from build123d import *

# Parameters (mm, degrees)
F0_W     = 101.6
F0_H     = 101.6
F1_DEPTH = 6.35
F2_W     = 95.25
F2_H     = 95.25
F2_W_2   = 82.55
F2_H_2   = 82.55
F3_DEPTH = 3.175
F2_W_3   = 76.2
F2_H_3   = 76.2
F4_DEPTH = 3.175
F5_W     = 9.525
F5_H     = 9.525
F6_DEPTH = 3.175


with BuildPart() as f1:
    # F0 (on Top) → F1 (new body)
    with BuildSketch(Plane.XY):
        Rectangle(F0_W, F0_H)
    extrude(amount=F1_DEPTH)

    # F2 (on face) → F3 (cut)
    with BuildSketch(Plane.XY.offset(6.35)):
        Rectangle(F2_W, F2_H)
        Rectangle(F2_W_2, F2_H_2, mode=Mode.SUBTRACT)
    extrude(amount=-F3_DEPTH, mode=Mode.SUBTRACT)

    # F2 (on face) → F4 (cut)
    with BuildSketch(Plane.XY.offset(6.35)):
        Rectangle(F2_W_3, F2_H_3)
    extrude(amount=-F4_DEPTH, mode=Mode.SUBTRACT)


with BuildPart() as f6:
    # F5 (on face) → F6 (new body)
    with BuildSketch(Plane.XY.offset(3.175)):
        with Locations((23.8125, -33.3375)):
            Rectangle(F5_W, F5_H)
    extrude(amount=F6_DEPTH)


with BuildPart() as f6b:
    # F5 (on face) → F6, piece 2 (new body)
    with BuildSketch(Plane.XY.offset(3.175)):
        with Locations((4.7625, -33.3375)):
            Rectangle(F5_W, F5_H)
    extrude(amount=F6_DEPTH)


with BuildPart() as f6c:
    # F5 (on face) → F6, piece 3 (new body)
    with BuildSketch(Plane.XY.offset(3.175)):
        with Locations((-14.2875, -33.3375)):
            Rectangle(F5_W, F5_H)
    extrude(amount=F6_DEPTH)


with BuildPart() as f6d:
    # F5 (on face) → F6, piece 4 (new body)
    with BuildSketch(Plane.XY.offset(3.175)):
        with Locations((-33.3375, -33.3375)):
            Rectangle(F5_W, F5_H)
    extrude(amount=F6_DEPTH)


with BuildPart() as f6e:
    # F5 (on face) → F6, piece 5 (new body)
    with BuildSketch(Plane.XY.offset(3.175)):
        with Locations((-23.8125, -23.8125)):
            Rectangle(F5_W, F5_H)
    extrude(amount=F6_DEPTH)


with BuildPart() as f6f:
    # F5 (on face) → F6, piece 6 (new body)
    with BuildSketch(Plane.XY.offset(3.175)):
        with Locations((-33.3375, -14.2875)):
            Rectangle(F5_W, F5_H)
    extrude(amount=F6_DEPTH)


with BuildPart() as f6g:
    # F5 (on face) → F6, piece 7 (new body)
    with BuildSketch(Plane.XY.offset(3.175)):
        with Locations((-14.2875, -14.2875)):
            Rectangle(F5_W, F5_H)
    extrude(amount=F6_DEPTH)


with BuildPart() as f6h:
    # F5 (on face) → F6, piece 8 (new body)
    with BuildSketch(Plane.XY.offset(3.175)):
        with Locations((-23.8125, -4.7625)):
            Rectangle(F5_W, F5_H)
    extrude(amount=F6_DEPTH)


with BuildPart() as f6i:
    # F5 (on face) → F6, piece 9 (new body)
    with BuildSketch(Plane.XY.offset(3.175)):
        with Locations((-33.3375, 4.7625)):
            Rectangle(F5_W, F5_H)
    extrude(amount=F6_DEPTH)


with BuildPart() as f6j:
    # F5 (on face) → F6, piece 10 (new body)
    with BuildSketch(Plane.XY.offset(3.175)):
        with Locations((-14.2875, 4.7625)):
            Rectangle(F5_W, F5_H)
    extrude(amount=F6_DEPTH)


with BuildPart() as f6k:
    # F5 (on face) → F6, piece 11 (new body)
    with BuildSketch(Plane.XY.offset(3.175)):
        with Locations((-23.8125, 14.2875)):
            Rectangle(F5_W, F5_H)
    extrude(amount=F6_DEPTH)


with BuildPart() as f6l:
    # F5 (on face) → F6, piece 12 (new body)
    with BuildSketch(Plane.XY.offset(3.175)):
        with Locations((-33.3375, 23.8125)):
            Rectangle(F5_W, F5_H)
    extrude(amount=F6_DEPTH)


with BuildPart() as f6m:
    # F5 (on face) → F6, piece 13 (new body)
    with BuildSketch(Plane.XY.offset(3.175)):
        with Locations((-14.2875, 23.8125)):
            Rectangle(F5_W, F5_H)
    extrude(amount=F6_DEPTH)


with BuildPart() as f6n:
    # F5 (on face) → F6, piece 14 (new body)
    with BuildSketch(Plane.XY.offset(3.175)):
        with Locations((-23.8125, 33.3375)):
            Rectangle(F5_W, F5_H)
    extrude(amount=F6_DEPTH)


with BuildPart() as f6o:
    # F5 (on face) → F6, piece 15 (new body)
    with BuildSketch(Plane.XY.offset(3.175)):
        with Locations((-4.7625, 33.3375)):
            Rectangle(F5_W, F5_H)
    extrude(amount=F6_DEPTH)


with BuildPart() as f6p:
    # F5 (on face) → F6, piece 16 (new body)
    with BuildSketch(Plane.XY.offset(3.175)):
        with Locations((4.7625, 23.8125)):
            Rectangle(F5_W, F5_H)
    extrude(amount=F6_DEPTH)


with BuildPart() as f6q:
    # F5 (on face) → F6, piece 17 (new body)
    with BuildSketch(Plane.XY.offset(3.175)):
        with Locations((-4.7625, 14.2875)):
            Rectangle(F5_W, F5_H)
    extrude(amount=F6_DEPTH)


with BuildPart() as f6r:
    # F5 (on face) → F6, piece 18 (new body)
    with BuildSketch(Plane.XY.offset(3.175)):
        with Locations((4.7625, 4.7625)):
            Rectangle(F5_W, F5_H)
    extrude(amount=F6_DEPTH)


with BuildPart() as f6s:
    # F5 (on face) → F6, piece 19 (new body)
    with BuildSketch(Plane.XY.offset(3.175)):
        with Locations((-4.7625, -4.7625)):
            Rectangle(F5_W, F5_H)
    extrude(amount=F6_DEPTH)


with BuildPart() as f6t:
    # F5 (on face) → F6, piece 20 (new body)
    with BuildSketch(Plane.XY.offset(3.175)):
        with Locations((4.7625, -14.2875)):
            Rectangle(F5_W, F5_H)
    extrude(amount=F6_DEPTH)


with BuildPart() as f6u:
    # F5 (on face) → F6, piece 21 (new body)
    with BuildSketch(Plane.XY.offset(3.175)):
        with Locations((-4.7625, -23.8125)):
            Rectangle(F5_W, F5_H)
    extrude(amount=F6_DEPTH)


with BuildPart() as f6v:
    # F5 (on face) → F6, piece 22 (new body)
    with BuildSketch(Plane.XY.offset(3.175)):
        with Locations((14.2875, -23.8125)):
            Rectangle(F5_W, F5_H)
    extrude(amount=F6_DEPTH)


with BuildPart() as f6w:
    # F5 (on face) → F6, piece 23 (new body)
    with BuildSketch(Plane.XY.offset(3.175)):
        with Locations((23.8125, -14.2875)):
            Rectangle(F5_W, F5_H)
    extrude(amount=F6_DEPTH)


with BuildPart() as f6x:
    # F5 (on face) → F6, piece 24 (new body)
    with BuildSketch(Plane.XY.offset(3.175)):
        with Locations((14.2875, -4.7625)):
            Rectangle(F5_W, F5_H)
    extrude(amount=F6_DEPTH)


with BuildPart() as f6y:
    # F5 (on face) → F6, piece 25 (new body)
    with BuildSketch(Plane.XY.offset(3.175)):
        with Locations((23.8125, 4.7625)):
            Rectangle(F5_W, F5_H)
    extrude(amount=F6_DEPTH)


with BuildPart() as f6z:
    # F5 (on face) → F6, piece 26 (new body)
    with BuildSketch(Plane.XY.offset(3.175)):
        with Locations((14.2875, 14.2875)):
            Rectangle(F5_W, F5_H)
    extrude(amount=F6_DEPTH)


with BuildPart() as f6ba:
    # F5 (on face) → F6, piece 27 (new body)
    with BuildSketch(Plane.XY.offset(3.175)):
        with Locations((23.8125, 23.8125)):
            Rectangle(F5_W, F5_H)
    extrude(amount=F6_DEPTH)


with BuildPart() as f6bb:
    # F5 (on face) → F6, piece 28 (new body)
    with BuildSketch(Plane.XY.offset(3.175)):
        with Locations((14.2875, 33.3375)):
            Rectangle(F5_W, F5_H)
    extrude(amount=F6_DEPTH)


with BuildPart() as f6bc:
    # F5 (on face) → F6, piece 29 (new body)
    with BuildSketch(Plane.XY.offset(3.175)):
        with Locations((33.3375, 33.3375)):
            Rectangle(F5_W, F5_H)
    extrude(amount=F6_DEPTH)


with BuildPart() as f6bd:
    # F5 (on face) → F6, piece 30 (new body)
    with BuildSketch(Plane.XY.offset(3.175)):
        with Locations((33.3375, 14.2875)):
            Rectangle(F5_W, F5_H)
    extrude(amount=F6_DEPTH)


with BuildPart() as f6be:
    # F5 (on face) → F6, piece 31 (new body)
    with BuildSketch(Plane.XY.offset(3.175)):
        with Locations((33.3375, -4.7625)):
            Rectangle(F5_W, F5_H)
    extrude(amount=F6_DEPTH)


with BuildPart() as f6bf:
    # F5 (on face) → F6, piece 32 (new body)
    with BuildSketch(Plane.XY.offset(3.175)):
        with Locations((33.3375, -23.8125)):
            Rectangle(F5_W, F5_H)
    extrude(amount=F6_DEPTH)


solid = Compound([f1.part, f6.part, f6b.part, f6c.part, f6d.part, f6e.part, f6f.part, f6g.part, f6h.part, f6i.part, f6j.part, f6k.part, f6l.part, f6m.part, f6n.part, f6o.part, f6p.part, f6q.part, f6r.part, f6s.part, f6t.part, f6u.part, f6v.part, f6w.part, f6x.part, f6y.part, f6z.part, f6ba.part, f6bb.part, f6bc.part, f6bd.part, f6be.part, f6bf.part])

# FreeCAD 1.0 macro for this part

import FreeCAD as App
import Part
import Sketcher
Q = App.Units.Quantity


def add_polygon(sketch, points):
    """Adds a closed chain of lines whose ends are joined by coincident constraints."""
    first, n = sketch.GeometryCount, len(points)
    for a, b in zip(points, points[1:] + points[:1]):
        sketch.addGeometry(Part.LineSegment(App.Vector(*a, 0), App.Vector(*b, 0)), False)
    for i in range(n):
        sketch.addConstraint(Sketcher.Constraint("Coincident", first + i, 2, first + (i + 1) % n, 1))

doc = App.newDocument("Part")
body = doc.addObject("PartDesign::Body", "Body")

# Sketch on XY plane
sketch1 = body.newObject("Sketcher::SketchObject", "Sketch")
sketch1.AttachmentSupport = (doc.getObject("XY_Plane"), [""])
sketch1.MapMode = "FlatFace"
add_polygon(sketch1, [(-51, 51), (-51, -51), (51, -51), (51, 51)])  # lines 0-3
sketch1.addConstraint([
    Sketcher.Constraint("Vertical", 0),
    Sketcher.Constraint("Horizontal", 1),
    Sketcher.Constraint("Vertical", 2),
    Sketcher.Constraint("Horizontal", 3),
    Sketcher.Constraint("Symmetric", 0, 2, 2, 2, -1, 1),
    Sketcher.Constraint("Equal", 3, 0),
    Sketcher.Constraint("DistanceX", 1, 1, 1, 2, Q("4 in")),
])
pad1 = body.newObject("PartDesign::Pad", "Pad")
pad1.Profile = sketch1
pad1.Length = Q("0.25 in")

# Sketch on XY plane
sketch2 = body.newObject("Sketcher::SketchObject", "Sketch001")
sketch2.AttachmentSupport = (doc.getObject("XY_Plane"), [""])
sketch2.MapMode = "FlatFace"
sketch2.AttachmentOffset = App.Placement(App.Vector(0, 0, 0.25 * 25.4), App.Rotation())
add_polygon(sketch2, [(-48, 48), (-48, -48), (48, -48), (48, 48)])  # lines 0-3
add_polygon(sketch2, [(41, -41), (-41, -41), (-41, 41), (41, 41)])  # lines 4-7
sketch2.addConstraint([
    Sketcher.Constraint("Vertical", 0),
    Sketcher.Constraint("Horizontal", 1),
    Sketcher.Constraint("Vertical", 2),
    Sketcher.Constraint("Horizontal", 3),
    Sketcher.Constraint("Horizontal", 4),
    Sketcher.Constraint("Vertical", 5),
    Sketcher.Constraint("Horizontal", 6),
    Sketcher.Constraint("Vertical", 7),
    Sketcher.Constraint("Symmetric", 0, 2, 2, 2, -1, 1),
    Sketcher.Constraint("Symmetric", 4, 2, 6, 2, -1, 1),
    Sketcher.Constraint("Equal", 3, 0),
    Sketcher.Constraint("Equal", 6, 5),
    Sketcher.Constraint("DistanceX", 1, 1, 1, 2, Q("3.75 in")),
    Sketcher.Constraint("DistanceX", 4, 2, 4, 1, Q("3.25 in")),
])
pocket1 = body.newObject("PartDesign::Pocket", "Pocket")
pocket1.Profile = sketch2
pocket1.Length = Q("0.125 in")

# Sketch on XY plane
sketch3 = body.newObject("Sketcher::SketchObject", "Sketch002")
sketch3.AttachmentSupport = (doc.getObject("XY_Plane"), [""])
sketch3.MapMode = "FlatFace"
sketch3.AttachmentOffset = App.Placement(App.Vector(0, 0, 0.25 * 25.4), App.Rotation())
add_polygon(sketch3, [(-38, 38), (-38, -38), (38, -38), (38, 38)])  # lines 0-3
sketch3.addConstraint([
    Sketcher.Constraint("Vertical", 0),
    Sketcher.Constraint("Horizontal", 1),
    Sketcher.Constraint("Vertical", 2),
    Sketcher.Constraint("Horizontal", 3),
    Sketcher.Constraint("Symmetric", 0, 2, 2, 2, -1, 1),
    Sketcher.Constraint("Equal", 3, 0),
    Sketcher.Constraint("DistanceX", 1, 1, 1, 2, Q("3 in")),
])
pocket2 = body.newObject("PartDesign::Pocket", "Pocket001")
pocket2.Profile = sketch3
pocket2.Length = Q("0.125 in")
body2 = doc.addObject("PartDesign::Body", "Body001")

# Sketch on XY plane
sketch4 = body2.newObject("Sketcher::SketchObject", "Sketch003")
sketch4.AttachmentSupport = (doc.getObject("XY_Plane001"), [""])
sketch4.MapMode = "FlatFace"
sketch4.AttachmentOffset = App.Placement(App.Vector(0, 0, 0.125 * 25.4), App.Rotation())
add_polygon(sketch4, [(19, -29), (19, -38), (29, -38), (29, -29)])  # lines 0-3
sketch4.addConstraint([
    Sketcher.Constraint("Vertical", 0),
    Sketcher.Constraint("Horizontal", 1),
    Sketcher.Constraint("Vertical", 2),
    Sketcher.Constraint("Horizontal", 3),
    Sketcher.Constraint("Equal", 3, 0),
    Sketcher.Constraint("DistanceY", 0, 2, -1, 1, Q("1.5 in")),
    Sketcher.Constraint("DistanceX", 1, 1, 1, 2, Q("0.375 in")),
    Sketcher.Constraint("DistanceX", -1, 1, 0, 2, Q("0.75 in")),
])
pad2 = body2.newObject("PartDesign::Pad", "Pad001")
pad2.Profile = sketch4
pad2.Length = Q("0.125 in")
body3 = doc.addObject("PartDesign::Body", "Body002")

# Sketch on XY plane
sketch5 = body3.newObject("Sketcher::SketchObject", "Sketch004")
sketch5.AttachmentSupport = (doc.getObject("XY_Plane002"), [""])
sketch5.MapMode = "FlatFace"
sketch5.AttachmentOffset = App.Placement(App.Vector(0, 0, 0.125 * 25.4), App.Rotation())
add_polygon(sketch5, [(0, -29), (0, -38), (10, -38), (10, -29)])  # lines 0-3
sketch5.addConstraint([
    Sketcher.Constraint("Vertical", 0),
    Sketcher.Constraint("Horizontal", 1),
    Sketcher.Constraint("Vertical", 2),
    Sketcher.Constraint("Horizontal", 3),
    Sketcher.Constraint("PointOnObject", 0, 2, -2),
    Sketcher.Constraint("Equal", 3, 0),
    Sketcher.Constraint("DistanceY", 0, 2, -1, 1, Q("1.5 in")),
    Sketcher.Constraint("DistanceX", 1, 1, 1, 2, Q("0.375 in")),
])
pad3 = body3.newObject("PartDesign::Pad", "Pad002")
pad3.Profile = sketch5
pad3.Length = Q("0.125 in")
body4 = doc.addObject("PartDesign::Body", "Body003")

# Sketch on XY plane
sketch6 = body4.newObject("Sketcher::SketchObject", "Sketch005")
sketch6.AttachmentSupport = (doc.getObject("XY_Plane003"), [""])
sketch6.MapMode = "FlatFace"
sketch6.AttachmentOffset = App.Placement(App.Vector(0, 0, 0.125 * 25.4), App.Rotation())
add_polygon(sketch6, [(-19, -29), (-19, -38), (-10, -38), (-10, -29)])  # lines 0-3
sketch6.addConstraint([
    Sketcher.Constraint("Vertical", 0),
    Sketcher.Constraint("Horizontal", 1),
    Sketcher.Constraint("Vertical", 2),
    Sketcher.Constraint("Horizontal", 3),
    Sketcher.Constraint("Equal", 3, 0),
    Sketcher.Constraint("DistanceY", 0, 2, -1, 1, Q("1.5 in")),
    Sketcher.Constraint("DistanceX", 1, 1, 1, 2, Q("0.375 in")),
    Sketcher.Constraint("DistanceX", 0, 2, -1, 1, Q("0.75 in")),
])
pad4 = body4.newObject("PartDesign::Pad", "Pad003")
pad4.Profile = sketch6
pad4.Length = Q("0.125 in")
body5 = doc.addObject("PartDesign::Body", "Body004")

# Sketch on XY plane
sketch7 = body5.newObject("Sketcher::SketchObject", "Sketch006")
sketch7.AttachmentSupport = (doc.getObject("XY_Plane004"), [""])
sketch7.MapMode = "FlatFace"
sketch7.AttachmentOffset = App.Placement(App.Vector(0, 0, 0.125 * 25.4), App.Rotation())
add_polygon(sketch7, [(-38, -29), (-38, -38), (-29, -38), (-29, -29)])  # lines 0-3
sketch7.addConstraint([
    Sketcher.Constraint("Vertical", 0),
    Sketcher.Constraint("Horizontal", 1),
    Sketcher.Constraint("Vertical", 2),
    Sketcher.Constraint("Horizontal", 3),
    Sketcher.Constraint("Equal", 3, 0),
    Sketcher.Constraint("DistanceX", 0, 2, -1, 1, Q("1.5 in")),
    Sketcher.Constraint("DistanceY", 0, 2, -1, 1, Q("1.5 in")),
    Sketcher.Constraint("DistanceX", 1, 1, 1, 2, Q("0.375 in")),
])
pad5 = body5.newObject("PartDesign::Pad", "Pad004")
pad5.Profile = sketch7
pad5.Length = Q("0.125 in")
body6 = doc.addObject("PartDesign::Body", "Body005")

# Sketch on XY plane
sketch8 = body6.newObject("Sketcher::SketchObject", "Sketch007")
sketch8.AttachmentSupport = (doc.getObject("XY_Plane005"), [""])
sketch8.MapMode = "FlatFace"
sketch8.AttachmentOffset = App.Placement(App.Vector(0, 0, 0.125 * 25.4), App.Rotation())
add_polygon(sketch8, [(-29, -19), (-29, -29), (-19, -29), (-19, -19)])  # lines 0-3
sketch8.addConstraint([
    Sketcher.Constraint("Vertical", 0),
    Sketcher.Constraint("Horizontal", 1),
    Sketcher.Constraint("Vertical", 2),
    Sketcher.Constraint("Horizontal", 3),
    Sketcher.Constraint("Equal", 3, 0),
    Sketcher.Constraint("DistanceX", 1, 1, 1, 2, Q("0.375 in")),
    Sketcher.Constraint("DistanceX", 1, 2, -1, 1, Q("0.75 in")),
    Sketcher.Constraint("DistanceY", 2, 2, -1, 1, Q("0.75 in")),
])
pad6 = body6.newObject("PartDesign::Pad", "Pad005")
pad6.Profile = sketch8
pad6.Length = Q("0.125 in")
body7 = doc.addObject("PartDesign::Body", "Body006")

# Sketch on XY plane
sketch9 = body7.newObject("Sketcher::SketchObject", "Sketch008")
sketch9.AttachmentSupport = (doc.getObject("XY_Plane006"), [""])
sketch9.MapMode = "FlatFace"
sketch9.AttachmentOffset = App.Placement(App.Vector(0, 0, 0.125 * 25.4), App.Rotation())
add_polygon(sketch9, [(-38, -10), (-38, -19), (-29, -19), (-29, -10)])  # lines 0-3
sketch9.addConstraint([
    Sketcher.Constraint("Vertical", 0),
    Sketcher.Constraint("Horizontal", 1),
    Sketcher.Constraint("Vertical", 2),
    Sketcher.Constraint("Horizontal", 3),
    Sketcher.Constraint("Equal", 3, 0),
    Sketcher.Constraint("DistanceX", 0, 2, -1, 1, Q("1.5 in")),
    Sketcher.Constraint("DistanceX", 1, 1, 1, 2, Q("0.375 in")),
    Sketcher.Constraint("DistanceY", 0, 2, -1, 1, Q("0.75 in")),
])
pad7 = body7.newObject("PartDesign::Pad", "Pad006")
pad7.Profile = sketch9
pad7.Length = Q("0.125 in")
body8 = doc.addObject("PartDesign::Body", "Body007")

# Sketch on XY plane
sketch10 = body8.newObject("Sketcher::SketchObject", "Sketch009")
sketch10.AttachmentSupport = (doc.getObject("XY_Plane007"), [""])
sketch10.MapMode = "FlatFace"
sketch10.AttachmentOffset = App.Placement(App.Vector(0, 0, 0.125 * 25.4), App.Rotation())
add_polygon(sketch10, [(-19, -10), (-19, -19), (-10, -19), (-10, -10)])  # lines 0-3
sketch10.addConstraint([
    Sketcher.Constraint("Vertical", 0),
    Sketcher.Constraint("Horizontal", 1),
    Sketcher.Constraint("Vertical", 2),
    Sketcher.Constraint("Horizontal", 3),
    Sketcher.Constraint("Equal", 3, 0),
    Sketcher.Constraint("DistanceX", 1, 1, 1, 2, Q("0.375 in")),
    Sketcher.Constraint("DistanceX", 0, 2, -1, 1, Q("0.75 in")),
    Sketcher.Constraint("DistanceY", 0, 2, -1, 1, Q("0.75 in")),
])
pad8 = body8.newObject("PartDesign::Pad", "Pad007")
pad8.Profile = sketch10
pad8.Length = Q("0.125 in")
body9 = doc.addObject("PartDesign::Body", "Body008")

# Sketch on XY plane
sketch11 = body9.newObject("Sketcher::SketchObject", "Sketch010")
sketch11.AttachmentSupport = (doc.getObject("XY_Plane008"), [""])
sketch11.MapMode = "FlatFace"
sketch11.AttachmentOffset = App.Placement(App.Vector(0, 0, 0.125 * 25.4), App.Rotation())
add_polygon(sketch11, [(-29, 0), (-29, -10), (-19, -10), (-19, 0)])  # lines 0-3
sketch11.addConstraint([
    Sketcher.Constraint("Vertical", 0),
    Sketcher.Constraint("Horizontal", 1),
    Sketcher.Constraint("Vertical", 2),
    Sketcher.Constraint("Horizontal", 3),
    Sketcher.Constraint("PointOnObject", 2, 2, -1),
    Sketcher.Constraint("Equal", 3, 0),
    Sketcher.Constraint("DistanceX", 1, 1, 1, 2, Q("0.375 in")),
    Sketcher.Constraint("DistanceX", 1, 2, -1, 1, Q("0.75 in")),
])
pad9 = body9.newObject("PartDesign::Pad", "Pad008")
pad9.Profile = sketch11
pad9.Length = Q("0.125 in")
body10 = doc.addObject("PartDesign::Body", "Body009")

# Sketch on XY plane
sketch12 = body10.newObject("Sketcher::SketchObject", "Sketch011")
sketch12.AttachmentSupport = (doc.getObject("XY_Plane009"), [""])
sketch12.MapMode = "FlatFace"
sketch12.AttachmentOffset = App.Placement(App.Vector(0, 0, 0.125 * 25.4), App.Rotation())
add_polygon(sketch12, [(-38, 10), (-38, 0), (-29, 0), (-29, 10)])  # lines 0-3
sketch12.addConstraint([
    Sketcher.Constraint("Vertical", 0),
    Sketcher.Constraint("Horizontal", 1),
    Sketcher.Constraint("Vertical", 2),
    Sketcher.Constraint("Horizontal", 3),
    Sketcher.Constraint("PointOnObject", 0, 2, -1),
    Sketcher.Constraint("Equal", 3, 0),
    Sketcher.Constraint("DistanceX", 0, 2, -1, 1, Q("1.5 in")),
    Sketcher.Constraint("DistanceX", 1, 1, 1, 2, Q("0.375 in")),
])
pad10 = body10.newObject("PartDesign::Pad", "Pad009")
pad10.Profile = sketch12
pad10.Length = Q("0.125 in")
body11 = doc.addObject("PartDesign::Body", "Body010")

# Sketch on XY plane
sketch13 = body11.newObject("Sketcher::SketchObject", "Sketch012")
sketch13.AttachmentSupport = (doc.getObject("XY_Plane010"), [""])
sketch13.MapMode = "FlatFace"
sketch13.AttachmentOffset = App.Placement(App.Vector(0, 0, 0.125 * 25.4), App.Rotation())
add_polygon(sketch13, [(-19, 10), (-19, 0), (-10, 0), (-10, 10)])  # lines 0-3
sketch13.addConstraint([
    Sketcher.Constraint("Vertical", 0),
    Sketcher.Constraint("Horizontal", 1),
    Sketcher.Constraint("Vertical", 2),
    Sketcher.Constraint("Horizontal", 3),
    Sketcher.Constraint("PointOnObject", 0, 2, -1),
    Sketcher.Constraint("Equal", 3, 0),
    Sketcher.Constraint("DistanceX", 1, 1, 1, 2, Q("0.375 in")),
    Sketcher.Constraint("DistanceX", 0, 2, -1, 1, Q("0.75 in")),
])
pad11 = body11.newObject("PartDesign::Pad", "Pad010")
pad11.Profile = sketch13
pad11.Length = Q("0.125 in")
body12 = doc.addObject("PartDesign::Body", "Body011")

# Sketch on XY plane
sketch14 = body12.newObject("Sketcher::SketchObject", "Sketch013")
sketch14.AttachmentSupport = (doc.getObject("XY_Plane011"), [""])
sketch14.MapMode = "FlatFace"
sketch14.AttachmentOffset = App.Placement(App.Vector(0, 0, 0.125 * 25.4), App.Rotation())
add_polygon(sketch14, [(-29, 19), (-29, 10), (-19, 10), (-19, 19)])  # lines 0-3
sketch14.addConstraint([
    Sketcher.Constraint("Vertical", 0),
    Sketcher.Constraint("Horizontal", 1),
    Sketcher.Constraint("Vertical", 2),
    Sketcher.Constraint("Horizontal", 3),
    Sketcher.Constraint("Equal", 3, 0),
    Sketcher.Constraint("DistanceX", 1, 1, 1, 2, Q("0.375 in")),
    Sketcher.Constraint("DistanceX", 1, 2, -1, 1, Q("0.75 in")),
    Sketcher.Constraint("DistanceY", -1, 1, 2, 2, Q("0.75 in")),
])
pad12 = body12.newObject("PartDesign::Pad", "Pad011")
pad12.Profile = sketch14
pad12.Length = Q("0.125 in")
body13 = doc.addObject("PartDesign::Body", "Body012")

# Sketch on XY plane
sketch15 = body13.newObject("Sketcher::SketchObject", "Sketch014")
sketch15.AttachmentSupport = (doc.getObject("XY_Plane012"), [""])
sketch15.MapMode = "FlatFace"
sketch15.AttachmentOffset = App.Placement(App.Vector(0, 0, 0.125 * 25.4), App.Rotation())
add_polygon(sketch15, [(-38, 29), (-38, 19), (-29, 19), (-29, 29)])  # lines 0-3
sketch15.addConstraint([
    Sketcher.Constraint("Vertical", 0),
    Sketcher.Constraint("Horizontal", 1),
    Sketcher.Constraint("Vertical", 2),
    Sketcher.Constraint("Horizontal", 3),
    Sketcher.Constraint("Equal", 3, 0),
    Sketcher.Constraint("DistanceX", 0, 2, -1, 1, Q("1.5 in")),
    Sketcher.Constraint("DistanceX", 1, 1, 1, 2, Q("0.375 in")),
    Sketcher.Constraint("DistanceY", -1, 1, 0, 2, Q("0.75 in")),
])
pad13 = body13.newObject("PartDesign::Pad", "Pad012")
pad13.Profile = sketch15
pad13.Length = Q("0.125 in")
body14 = doc.addObject("PartDesign::Body", "Body013")

# Sketch on XY plane
sketch16 = body14.newObject("Sketcher::SketchObject", "Sketch015")
sketch16.AttachmentSupport = (doc.getObject("XY_Plane013"), [""])
sketch16.MapMode = "FlatFace"
sketch16.AttachmentOffset = App.Placement(App.Vector(0, 0, 0.125 * 25.4), App.Rotation())
add_polygon(sketch16, [(-19, 29), (-19, 19), (-10, 19), (-10, 29)])  # lines 0-3
sketch16.addConstraint([
    Sketcher.Constraint("Vertical", 0),
    Sketcher.Constraint("Horizontal", 1),
    Sketcher.Constraint("Vertical", 2),
    Sketcher.Constraint("Horizontal", 3),
    Sketcher.Constraint("Equal", 3, 0),
    Sketcher.Constraint("DistanceX", 1, 1, 1, 2, Q("0.375 in")),
    Sketcher.Constraint("DistanceX", 0, 2, -1, 1, Q("0.75 in")),
    Sketcher.Constraint("DistanceY", -1, 1, 0, 2, Q("0.75 in")),
])
pad14 = body14.newObject("PartDesign::Pad", "Pad013")
pad14.Profile = sketch16
pad14.Length = Q("0.125 in")
body15 = doc.addObject("PartDesign::Body", "Body014")

# Sketch on XY plane
sketch17 = body15.newObject("Sketcher::SketchObject", "Sketch016")
sketch17.AttachmentSupport = (doc.getObject("XY_Plane014"), [""])
sketch17.MapMode = "FlatFace"
sketch17.AttachmentOffset = App.Placement(App.Vector(0, 0, 0.125 * 25.4), App.Rotation())
add_polygon(sketch17, [(-29, 38), (-29, 29), (-19, 29), (-19, 38)])  # lines 0-3
sketch17.addConstraint([
    Sketcher.Constraint("Vertical", 0),
    Sketcher.Constraint("Horizontal", 1),
    Sketcher.Constraint("Vertical", 2),
    Sketcher.Constraint("Horizontal", 3),
    Sketcher.Constraint("Equal", 3, 0),
    Sketcher.Constraint("DistanceY", -1, 1, 2, 2, Q("1.5 in")),
    Sketcher.Constraint("DistanceX", 1, 1, 1, 2, Q("0.375 in")),
    Sketcher.Constraint("DistanceX", 1, 2, -1, 1, Q("0.75 in")),
])
pad15 = body15.newObject("PartDesign::Pad", "Pad014")
pad15.Profile = sketch17
pad15.Length = Q("0.125 in")
body16 = doc.addObject("PartDesign::Body", "Body015")

# Sketch on XY plane
sketch18 = body16.newObject("Sketcher::SketchObject", "Sketch017")
sketch18.AttachmentSupport = (doc.getObject("XY_Plane015"), [""])
sketch18.MapMode = "FlatFace"
sketch18.AttachmentOffset = App.Placement(App.Vector(0, 0, 0.125 * 25.4), App.Rotation())
add_polygon(sketch18, [(-10, 38), (-10, 29), (0, 29), (0, 38)])  # lines 0-3
sketch18.addConstraint([
    Sketcher.Constraint("Vertical", 0),
    Sketcher.Constraint("Horizontal", 1),
    Sketcher.Constraint("Vertical", 2),
    Sketcher.Constraint("Horizontal", 3),
    Sketcher.Constraint("PointOnObject", 1, 2, -2),
    Sketcher.Constraint("Equal", 3, 0),
    Sketcher.Constraint("DistanceY", -1, 1, 2, 2, Q("1.5 in")),
    Sketcher.Constraint("DistanceX", 1, 1, 1, 2, Q("0.375 in")),
])
pad16 = body16.newObject("PartDesign::Pad", "Pad015")
pad16.Profile = sketch18
pad16.Length = Q("0.125 in")
body17 = doc.addObject("PartDesign::Body", "Body016")

# Sketch on XY plane
sketch19 = body17.newObject("Sketcher::SketchObject", "Sketch018")
sketch19.AttachmentSupport = (doc.getObject("XY_Plane016"), [""])
sketch19.MapMode = "FlatFace"
sketch19.AttachmentOffset = App.Placement(App.Vector(0, 0, 0.125 * 25.4), App.Rotation())
add_polygon(sketch19, [(0, 29), (0, 19), (10, 19), (10, 29)])  # lines 0-3
sketch19.addConstraint([
    Sketcher.Constraint("Vertical", 0),
    Sketcher.Constraint("Horizontal", 1),
    Sketcher.Constraint("Vertical", 2),
    Sketcher.Constraint("Horizontal", 3),
    Sketcher.Constraint("PointOnObject", 0, 2, -2),
    Sketcher.Constraint("Equal", 3, 0),
    Sketcher.Constraint("DistanceX", 1, 1, 1, 2, Q("0.375 in")),
    Sketcher.Constraint("DistanceY", -1, 1, 0, 2, Q("0.75 in")),
])
pad17 = body17.newObject("PartDesign::Pad", "Pad016")
pad17.Profile = sketch19
pad17.Length = Q("0.125 in")
body18 = doc.addObject("PartDesign::Body", "Body017")

# Sketch on XY plane
sketch20 = body18.newObject("Sketcher::SketchObject", "Sketch019")
sketch20.AttachmentSupport = (doc.getObject("XY_Plane017"), [""])
sketch20.MapMode = "FlatFace"
sketch20.AttachmentOffset = App.Placement(App.Vector(0, 0, 0.125 * 25.4), App.Rotation())
add_polygon(sketch20, [(-10, 19), (-10, 10), (0, 10), (0, 19)])  # lines 0-3
sketch20.addConstraint([
    Sketcher.Constraint("Vertical", 0),
    Sketcher.Constraint("Horizontal", 1),
    Sketcher.Constraint("Vertical", 2),
    Sketcher.Constraint("Horizontal", 3),
    Sketcher.Constraint("PointOnObject", 1, 2, -2),
    Sketcher.Constraint("Equal", 3, 0),
    Sketcher.Constraint("DistanceX", 1, 1, 1, 2, Q("0.375 in")),
    Sketcher.Constraint("DistanceY", -1, 1, 2, 2, Q("0.75 in")),
])
pad18 = body18.newObject("PartDesign::Pad", "Pad017")
pad18.Profile = sketch20
pad18.Length = Q("0.125 in")
body19 = doc.addObject("PartDesign::Body", "Body018")

# Sketch on XY plane
sketch21 = body19.newObject("Sketcher::SketchObject", "Sketch020")
sketch21.AttachmentSupport = (doc.getObject("XY_Plane018"), [""])
sketch21.MapMode = "FlatFace"
sketch21.AttachmentOffset = App.Placement(App.Vector(0, 0, 0.125 * 25.4), App.Rotation())
add_polygon(sketch21, [(0, 10), (0, 0), (10, 0), (10, 10)])  # lines 0-3
sketch21.addConstraint([
    Sketcher.Constraint("Vertical", 0),
    Sketcher.Constraint("Horizontal", 1),
    Sketcher.Constraint("Vertical", 2),
    Sketcher.Constraint("Horizontal", 3),
    Sketcher.Constraint("Coincident", 0, 2, -1, 1),
    Sketcher.Constraint("Equal", 3, 0),
    Sketcher.Constraint("DistanceX", 1, 1, 1, 2, Q("0.375 in")),
])
pad19 = body19.newObject("PartDesign::Pad", "Pad018")
pad19.Profile = sketch21
pad19.Length = Q("0.125 in")
body20 = doc.addObject("PartDesign::Body", "Body019")

# Sketch on XY plane
sketch22 = body20.newObject("Sketcher::SketchObject", "Sketch021")
sketch22.AttachmentSupport = (doc.getObject("XY_Plane019"), [""])
sketch22.MapMode = "FlatFace"
sketch22.AttachmentOffset = App.Placement(App.Vector(0, 0, 0.125 * 25.4), App.Rotation())
add_polygon(sketch22, [(-10, 0), (-10, -10), (0, -10), (0, 0)])  # lines 0-3
sketch22.addConstraint([
    Sketcher.Constraint("Vertical", 0),
    Sketcher.Constraint("Horizontal", 1),
    Sketcher.Constraint("Vertical", 2),
    Sketcher.Constraint("Horizontal", 3),
    Sketcher.Constraint("Coincident", 2, 2, -1, 1),
    Sketcher.Constraint("Equal", 3, 0),
    Sketcher.Constraint("DistanceX", 1, 1, 1, 2, Q("0.375 in")),
])
pad20 = body20.newObject("PartDesign::Pad", "Pad019")
pad20.Profile = sketch22
pad20.Length = Q("0.125 in")
body21 = doc.addObject("PartDesign::Body", "Body020")

# Sketch on XY plane
sketch23 = body21.newObject("Sketcher::SketchObject", "Sketch022")
sketch23.AttachmentSupport = (doc.getObject("XY_Plane020"), [""])
sketch23.MapMode = "FlatFace"
sketch23.AttachmentOffset = App.Placement(App.Vector(0, 0, 0.125 * 25.4), App.Rotation())
add_polygon(sketch23, [(0, -10), (0, -19), (10, -19), (10, -10)])  # lines 0-3
sketch23.addConstraint([
    Sketcher.Constraint("Vertical", 0),
    Sketcher.Constraint("Horizontal", 1),
    Sketcher.Constraint("Vertical", 2),
    Sketcher.Constraint("Horizontal", 3),
    Sketcher.Constraint("PointOnObject", 0, 2, -2),
    Sketcher.Constraint("Equal", 3, 0),
    Sketcher.Constraint("DistanceX", 1, 1, 1, 2, Q("0.375 in")),
    Sketcher.Constraint("DistanceY", 0, 2, -1, 1, Q("0.75 in")),
])
pad21 = body21.newObject("PartDesign::Pad", "Pad020")
pad21.Profile = sketch23
pad21.Length = Q("0.125 in")
body22 = doc.addObject("PartDesign::Body", "Body021")

# Sketch on XY plane
sketch24 = body22.newObject("Sketcher::SketchObject", "Sketch023")
sketch24.AttachmentSupport = (doc.getObject("XY_Plane021"), [""])
sketch24.MapMode = "FlatFace"
sketch24.AttachmentOffset = App.Placement(App.Vector(0, 0, 0.125 * 25.4), App.Rotation())
add_polygon(sketch24, [(-10, -19), (-10, -29), (0, -29), (0, -19)])  # lines 0-3
sketch24.addConstraint([
    Sketcher.Constraint("Vertical", 0),
    Sketcher.Constraint("Horizontal", 1),
    Sketcher.Constraint("Vertical", 2),
    Sketcher.Constraint("Horizontal", 3),
    Sketcher.Constraint("PointOnObject", 1, 2, -2),
    Sketcher.Constraint("Equal", 3, 0),
    Sketcher.Constraint("DistanceX", 1, 1, 1, 2, Q("0.375 in")),
    Sketcher.Constraint("DistanceY", 2, 2, -1, 1, Q("0.75 in")),
])
pad22 = body22.newObject("PartDesign::Pad", "Pad021")
pad22.Profile = sketch24
pad22.Length = Q("0.125 in")
body23 = doc.addObject("PartDesign::Body", "Body022")

# Sketch on XY plane
sketch25 = body23.newObject("Sketcher::SketchObject", "Sketch024")
sketch25.AttachmentSupport = (doc.getObject("XY_Plane022"), [""])
sketch25.MapMode = "FlatFace"
sketch25.AttachmentOffset = App.Placement(App.Vector(0, 0, 0.125 * 25.4), App.Rotation())
add_polygon(sketch25, [(10, -19), (10, -29), (19, -29), (19, -19)])  # lines 0-3
sketch25.addConstraint([
    Sketcher.Constraint("Vertical", 0),
    Sketcher.Constraint("Horizontal", 1),
    Sketcher.Constraint("Vertical", 2),
    Sketcher.Constraint("Horizontal", 3),
    Sketcher.Constraint("Equal", 3, 0),
    Sketcher.Constraint("DistanceX", 1, 1, 1, 2, Q("0.375 in")),
    Sketcher.Constraint("DistanceX", -1, 1, 1, 2, Q("0.75 in")),
    Sketcher.Constraint("DistanceY", 2, 2, -1, 1, Q("0.75 in")),
])
pad23 = body23.newObject("PartDesign::Pad", "Pad022")
pad23.Profile = sketch25
pad23.Length = Q("0.125 in")
body24 = doc.addObject("PartDesign::Body", "Body023")

# Sketch on XY plane
sketch26 = body24.newObject("Sketcher::SketchObject", "Sketch025")
sketch26.AttachmentSupport = (doc.getObject("XY_Plane023"), [""])
sketch26.MapMode = "FlatFace"
sketch26.AttachmentOffset = App.Placement(App.Vector(0, 0, 0.125 * 25.4), App.Rotation())
add_polygon(sketch26, [(19, -10), (19, -19), (29, -19), (29, -10)])  # lines 0-3
sketch26.addConstraint([
    Sketcher.Constraint("Vertical", 0),
    Sketcher.Constraint("Horizontal", 1),
    Sketcher.Constraint("Vertical", 2),
    Sketcher.Constraint("Horizontal", 3),
    Sketcher.Constraint("Equal", 3, 0),
    Sketcher.Constraint("DistanceX", 1, 1, 1, 2, Q("0.375 in")),
    Sketcher.Constraint("DistanceX", -1, 1, 0, 2, Q("0.75 in")),
    Sketcher.Constraint("DistanceY", 0, 2, -1, 1, Q("0.75 in")),
])
pad24 = body24.newObject("PartDesign::Pad", "Pad023")
pad24.Profile = sketch26
pad24.Length = Q("0.125 in")
body25 = doc.addObject("PartDesign::Body", "Body024")

# Sketch on XY plane
sketch27 = body25.newObject("Sketcher::SketchObject", "Sketch026")
sketch27.AttachmentSupport = (doc.getObject("XY_Plane024"), [""])
sketch27.MapMode = "FlatFace"
sketch27.AttachmentOffset = App.Placement(App.Vector(0, 0, 0.125 * 25.4), App.Rotation())
add_polygon(sketch27, [(10, 0), (10, -10), (19, -10), (19, 0)])  # lines 0-3
sketch27.addConstraint([
    Sketcher.Constraint("Vertical", 0),
    Sketcher.Constraint("Horizontal", 1),
    Sketcher.Constraint("Vertical", 2),
    Sketcher.Constraint("Horizontal", 3),
    Sketcher.Constraint("PointOnObject", 2, 2, -1),
    Sketcher.Constraint("Equal", 3, 0),
    Sketcher.Constraint("DistanceX", 1, 1, 1, 2, Q("0.375 in")),
    Sketcher.Constraint("DistanceX", -1, 1, 1, 2, Q("0.75 in")),
])
pad25 = body25.newObject("PartDesign::Pad", "Pad024")
pad25.Profile = sketch27
pad25.Length = Q("0.125 in")
body26 = doc.addObject("PartDesign::Body", "Body025")

# Sketch on XY plane
sketch28 = body26.newObject("Sketcher::SketchObject", "Sketch027")
sketch28.AttachmentSupport = (doc.getObject("XY_Plane025"), [""])
sketch28.MapMode = "FlatFace"
sketch28.AttachmentOffset = App.Placement(App.Vector(0, 0, 0.125 * 25.4), App.Rotation())
add_polygon(sketch28, [(19, 10), (19, 0), (29, 0), (29, 10)])  # lines 0-3
sketch28.addConstraint([
    Sketcher.Constraint("Vertical", 0),
    Sketcher.Constraint("Horizontal", 1),
    Sketcher.Constraint("Vertical", 2),
    Sketcher.Constraint("Horizontal", 3),
    Sketcher.Constraint("PointOnObject", 0, 2, -1),
    Sketcher.Constraint("Equal", 3, 0),
    Sketcher.Constraint("DistanceX", 1, 1, 1, 2, Q("0.375 in")),
    Sketcher.Constraint("DistanceX", -1, 1, 0, 2, Q("0.75 in")),
])
pad26 = body26.newObject("PartDesign::Pad", "Pad025")
pad26.Profile = sketch28
pad26.Length = Q("0.125 in")
body27 = doc.addObject("PartDesign::Body", "Body026")

# Sketch on XY plane
sketch29 = body27.newObject("Sketcher::SketchObject", "Sketch028")
sketch29.AttachmentSupport = (doc.getObject("XY_Plane026"), [""])
sketch29.MapMode = "FlatFace"
sketch29.AttachmentOffset = App.Placement(App.Vector(0, 0, 0.125 * 25.4), App.Rotation())
add_polygon(sketch29, [(10, 19), (10, 10), (19, 10), (19, 19)])  # lines 0-3
sketch29.addConstraint([
    Sketcher.Constraint("Vertical", 0),
    Sketcher.Constraint("Horizontal", 1),
    Sketcher.Constraint("Vertical", 2),
    Sketcher.Constraint("Horizontal", 3),
    Sketcher.Constraint("Equal", 3, 0),
    Sketcher.Constraint("DistanceX", 1, 1, 1, 2, Q("0.375 in")),
    Sketcher.Constraint("DistanceX", -1, 1, 1, 2, Q("0.75 in")),
    Sketcher.Constraint("DistanceY", -1, 1, 2, 2, Q("0.75 in")),
])
pad27 = body27.newObject("PartDesign::Pad", "Pad026")
pad27.Profile = sketch29
pad27.Length = Q("0.125 in")
body28 = doc.addObject("PartDesign::Body", "Body027")

# Sketch on XY plane
sketch30 = body28.newObject("Sketcher::SketchObject", "Sketch029")
sketch30.AttachmentSupport = (doc.getObject("XY_Plane027"), [""])
sketch30.MapMode = "FlatFace"
sketch30.AttachmentOffset = App.Placement(App.Vector(0, 0, 0.125 * 25.4), App.Rotation())
add_polygon(sketch30, [(19, 29), (19, 19), (29, 19), (29, 29)])  # lines 0-3
sketch30.addConstraint([
    Sketcher.Constraint("Vertical", 0),
    Sketcher.Constraint("Horizontal", 1),
    Sketcher.Constraint("Vertical", 2),
    Sketcher.Constraint("Horizontal", 3),
    Sketcher.Constraint("Equal", 3, 0),
    Sketcher.Constraint("DistanceX", 1, 1, 1, 2, Q("0.375 in")),
    Sketcher.Constraint("DistanceX", -1, 1, 0, 2, Q("0.75 in")),
    Sketcher.Constraint("DistanceY", -1, 1, 0, 2, Q("0.75 in")),
])
pad28 = body28.newObject("PartDesign::Pad", "Pad027")
pad28.Profile = sketch30
pad28.Length = Q("0.125 in")
body29 = doc.addObject("PartDesign::Body", "Body028")

# Sketch on XY plane
sketch31 = body29.newObject("Sketcher::SketchObject", "Sketch030")
sketch31.AttachmentSupport = (doc.getObject("XY_Plane028"), [""])
sketch31.MapMode = "FlatFace"
sketch31.AttachmentOffset = App.Placement(App.Vector(0, 0, 0.125 * 25.4), App.Rotation())
add_polygon(sketch31, [(10, 38), (10, 29), (19, 29), (19, 38)])  # lines 0-3
sketch31.addConstraint([
    Sketcher.Constraint("Vertical", 0),
    Sketcher.Constraint("Horizontal", 1),
    Sketcher.Constraint("Vertical", 2),
    Sketcher.Constraint("Horizontal", 3),
    Sketcher.Constraint("Equal", 3, 0),
    Sketcher.Constraint("DistanceY", -1, 1, 2, 2, Q("1.5 in")),
    Sketcher.Constraint("DistanceX", 1, 1, 1, 2, Q("0.375 in")),
    Sketcher.Constraint("DistanceX", -1, 1, 1, 2, Q("0.75 in")),
])
pad29 = body29.newObject("PartDesign::Pad", "Pad028")
pad29.Profile = sketch31
pad29.Length = Q("0.125 in")
body30 = doc.addObject("PartDesign::Body", "Body029")

# Sketch on XY plane
sketch32 = body30.newObject("Sketcher::SketchObject", "Sketch031")
sketch32.AttachmentSupport = (doc.getObject("XY_Plane029"), [""])
sketch32.MapMode = "FlatFace"
sketch32.AttachmentOffset = App.Placement(App.Vector(0, 0, 0.125 * 25.4), App.Rotation())
add_polygon(sketch32, [(29, 38), (29, 29), (38, 29), (38, 38)])  # lines 0-3
sketch32.addConstraint([
    Sketcher.Constraint("Vertical", 0),
    Sketcher.Constraint("Horizontal", 1),
    Sketcher.Constraint("Vertical", 2),
    Sketcher.Constraint("Horizontal", 3),
    Sketcher.Constraint("Equal", 3, 0),
    Sketcher.Constraint("DistanceX", -1, 1, 1, 2, Q("1.5 in")),
    Sketcher.Constraint("DistanceY", -1, 1, 2, 2, Q("1.5 in")),
    Sketcher.Constraint("DistanceX", 1, 1, 1, 2, Q("0.375 in")),
])
pad30 = body30.newObject("PartDesign::Pad", "Pad029")
pad30.Profile = sketch32
pad30.Length = Q("0.125 in")
body31 = doc.addObject("PartDesign::Body", "Body030")

# Sketch on XY plane
sketch33 = body31.newObject("Sketcher::SketchObject", "Sketch032")
sketch33.AttachmentSupport = (doc.getObject("XY_Plane030"), [""])
sketch33.MapMode = "FlatFace"
sketch33.AttachmentOffset = App.Placement(App.Vector(0, 0, 0.125 * 25.4), App.Rotation())
add_polygon(sketch33, [(29, 19), (29, 10), (38, 10), (38, 19)])  # lines 0-3
sketch33.addConstraint([
    Sketcher.Constraint("Vertical", 0),
    Sketcher.Constraint("Horizontal", 1),
    Sketcher.Constraint("Vertical", 2),
    Sketcher.Constraint("Horizontal", 3),
    Sketcher.Constraint("Equal", 3, 0),
    Sketcher.Constraint("DistanceX", -1, 1, 1, 2, Q("1.5 in")),
    Sketcher.Constraint("DistanceX", 1, 1, 1, 2, Q("0.375 in")),
    Sketcher.Constraint("DistanceY", -1, 1, 2, 2, Q("0.75 in")),
])
pad31 = body31.newObject("PartDesign::Pad", "Pad030")
pad31.Profile = sketch33
pad31.Length = Q("0.125 in")
body32 = doc.addObject("PartDesign::Body", "Body031")

# Sketch on XY plane
sketch34 = body32.newObject("Sketcher::SketchObject", "Sketch033")
sketch34.AttachmentSupport = (doc.getObject("XY_Plane031"), [""])
sketch34.MapMode = "FlatFace"
sketch34.AttachmentOffset = App.Placement(App.Vector(0, 0, 0.125 * 25.4), App.Rotation())
add_polygon(sketch34, [(29, 0), (29, -10), (38, -10), (38, 0)])  # lines 0-3
sketch34.addConstraint([
    Sketcher.Constraint("Vertical", 0),
    Sketcher.Constraint("Horizontal", 1),
    Sketcher.Constraint("Vertical", 2),
    Sketcher.Constraint("Horizontal", 3),
    Sketcher.Constraint("PointOnObject", 2, 2, -1),
    Sketcher.Constraint("Equal", 3, 0),
    Sketcher.Constraint("DistanceX", -1, 1, 1, 2, Q("1.5 in")),
    Sketcher.Constraint("DistanceX", 1, 1, 1, 2, Q("0.375 in")),
])
pad32 = body32.newObject("PartDesign::Pad", "Pad031")
pad32.Profile = sketch34
pad32.Length = Q("0.125 in")
body33 = doc.addObject("PartDesign::Body", "Body032")

# Sketch on XY plane
sketch35 = body33.newObject("Sketcher::SketchObject", "Sketch034")
sketch35.AttachmentSupport = (doc.getObject("XY_Plane032"), [""])
sketch35.MapMode = "FlatFace"
sketch35.AttachmentOffset = App.Placement(App.Vector(0, 0, 0.125 * 25.4), App.Rotation())
add_polygon(sketch35, [(29, -19), (29, -29), (38, -29), (38, -19)])  # lines 0-3
sketch35.addConstraint([
    Sketcher.Constraint("Vertical", 0),
    Sketcher.Constraint("Horizontal", 1),
    Sketcher.Constraint("Vertical", 2),
    Sketcher.Constraint("Horizontal", 3),
    Sketcher.Constraint("Equal", 3, 0),
    Sketcher.Constraint("DistanceX", -1, 1, 1, 2, Q("1.5 in")),
    Sketcher.Constraint("DistanceX", 1, 1, 1, 2, Q("0.375 in")),
    Sketcher.Constraint("DistanceY", 2, 2, -1, 1, Q("0.75 in")),
])
pad33 = body33.newObject("PartDesign::Pad", "Pad032")
pad33.Profile = sketch35
pad33.Length = Q("0.125 in")

doc.recompute()
